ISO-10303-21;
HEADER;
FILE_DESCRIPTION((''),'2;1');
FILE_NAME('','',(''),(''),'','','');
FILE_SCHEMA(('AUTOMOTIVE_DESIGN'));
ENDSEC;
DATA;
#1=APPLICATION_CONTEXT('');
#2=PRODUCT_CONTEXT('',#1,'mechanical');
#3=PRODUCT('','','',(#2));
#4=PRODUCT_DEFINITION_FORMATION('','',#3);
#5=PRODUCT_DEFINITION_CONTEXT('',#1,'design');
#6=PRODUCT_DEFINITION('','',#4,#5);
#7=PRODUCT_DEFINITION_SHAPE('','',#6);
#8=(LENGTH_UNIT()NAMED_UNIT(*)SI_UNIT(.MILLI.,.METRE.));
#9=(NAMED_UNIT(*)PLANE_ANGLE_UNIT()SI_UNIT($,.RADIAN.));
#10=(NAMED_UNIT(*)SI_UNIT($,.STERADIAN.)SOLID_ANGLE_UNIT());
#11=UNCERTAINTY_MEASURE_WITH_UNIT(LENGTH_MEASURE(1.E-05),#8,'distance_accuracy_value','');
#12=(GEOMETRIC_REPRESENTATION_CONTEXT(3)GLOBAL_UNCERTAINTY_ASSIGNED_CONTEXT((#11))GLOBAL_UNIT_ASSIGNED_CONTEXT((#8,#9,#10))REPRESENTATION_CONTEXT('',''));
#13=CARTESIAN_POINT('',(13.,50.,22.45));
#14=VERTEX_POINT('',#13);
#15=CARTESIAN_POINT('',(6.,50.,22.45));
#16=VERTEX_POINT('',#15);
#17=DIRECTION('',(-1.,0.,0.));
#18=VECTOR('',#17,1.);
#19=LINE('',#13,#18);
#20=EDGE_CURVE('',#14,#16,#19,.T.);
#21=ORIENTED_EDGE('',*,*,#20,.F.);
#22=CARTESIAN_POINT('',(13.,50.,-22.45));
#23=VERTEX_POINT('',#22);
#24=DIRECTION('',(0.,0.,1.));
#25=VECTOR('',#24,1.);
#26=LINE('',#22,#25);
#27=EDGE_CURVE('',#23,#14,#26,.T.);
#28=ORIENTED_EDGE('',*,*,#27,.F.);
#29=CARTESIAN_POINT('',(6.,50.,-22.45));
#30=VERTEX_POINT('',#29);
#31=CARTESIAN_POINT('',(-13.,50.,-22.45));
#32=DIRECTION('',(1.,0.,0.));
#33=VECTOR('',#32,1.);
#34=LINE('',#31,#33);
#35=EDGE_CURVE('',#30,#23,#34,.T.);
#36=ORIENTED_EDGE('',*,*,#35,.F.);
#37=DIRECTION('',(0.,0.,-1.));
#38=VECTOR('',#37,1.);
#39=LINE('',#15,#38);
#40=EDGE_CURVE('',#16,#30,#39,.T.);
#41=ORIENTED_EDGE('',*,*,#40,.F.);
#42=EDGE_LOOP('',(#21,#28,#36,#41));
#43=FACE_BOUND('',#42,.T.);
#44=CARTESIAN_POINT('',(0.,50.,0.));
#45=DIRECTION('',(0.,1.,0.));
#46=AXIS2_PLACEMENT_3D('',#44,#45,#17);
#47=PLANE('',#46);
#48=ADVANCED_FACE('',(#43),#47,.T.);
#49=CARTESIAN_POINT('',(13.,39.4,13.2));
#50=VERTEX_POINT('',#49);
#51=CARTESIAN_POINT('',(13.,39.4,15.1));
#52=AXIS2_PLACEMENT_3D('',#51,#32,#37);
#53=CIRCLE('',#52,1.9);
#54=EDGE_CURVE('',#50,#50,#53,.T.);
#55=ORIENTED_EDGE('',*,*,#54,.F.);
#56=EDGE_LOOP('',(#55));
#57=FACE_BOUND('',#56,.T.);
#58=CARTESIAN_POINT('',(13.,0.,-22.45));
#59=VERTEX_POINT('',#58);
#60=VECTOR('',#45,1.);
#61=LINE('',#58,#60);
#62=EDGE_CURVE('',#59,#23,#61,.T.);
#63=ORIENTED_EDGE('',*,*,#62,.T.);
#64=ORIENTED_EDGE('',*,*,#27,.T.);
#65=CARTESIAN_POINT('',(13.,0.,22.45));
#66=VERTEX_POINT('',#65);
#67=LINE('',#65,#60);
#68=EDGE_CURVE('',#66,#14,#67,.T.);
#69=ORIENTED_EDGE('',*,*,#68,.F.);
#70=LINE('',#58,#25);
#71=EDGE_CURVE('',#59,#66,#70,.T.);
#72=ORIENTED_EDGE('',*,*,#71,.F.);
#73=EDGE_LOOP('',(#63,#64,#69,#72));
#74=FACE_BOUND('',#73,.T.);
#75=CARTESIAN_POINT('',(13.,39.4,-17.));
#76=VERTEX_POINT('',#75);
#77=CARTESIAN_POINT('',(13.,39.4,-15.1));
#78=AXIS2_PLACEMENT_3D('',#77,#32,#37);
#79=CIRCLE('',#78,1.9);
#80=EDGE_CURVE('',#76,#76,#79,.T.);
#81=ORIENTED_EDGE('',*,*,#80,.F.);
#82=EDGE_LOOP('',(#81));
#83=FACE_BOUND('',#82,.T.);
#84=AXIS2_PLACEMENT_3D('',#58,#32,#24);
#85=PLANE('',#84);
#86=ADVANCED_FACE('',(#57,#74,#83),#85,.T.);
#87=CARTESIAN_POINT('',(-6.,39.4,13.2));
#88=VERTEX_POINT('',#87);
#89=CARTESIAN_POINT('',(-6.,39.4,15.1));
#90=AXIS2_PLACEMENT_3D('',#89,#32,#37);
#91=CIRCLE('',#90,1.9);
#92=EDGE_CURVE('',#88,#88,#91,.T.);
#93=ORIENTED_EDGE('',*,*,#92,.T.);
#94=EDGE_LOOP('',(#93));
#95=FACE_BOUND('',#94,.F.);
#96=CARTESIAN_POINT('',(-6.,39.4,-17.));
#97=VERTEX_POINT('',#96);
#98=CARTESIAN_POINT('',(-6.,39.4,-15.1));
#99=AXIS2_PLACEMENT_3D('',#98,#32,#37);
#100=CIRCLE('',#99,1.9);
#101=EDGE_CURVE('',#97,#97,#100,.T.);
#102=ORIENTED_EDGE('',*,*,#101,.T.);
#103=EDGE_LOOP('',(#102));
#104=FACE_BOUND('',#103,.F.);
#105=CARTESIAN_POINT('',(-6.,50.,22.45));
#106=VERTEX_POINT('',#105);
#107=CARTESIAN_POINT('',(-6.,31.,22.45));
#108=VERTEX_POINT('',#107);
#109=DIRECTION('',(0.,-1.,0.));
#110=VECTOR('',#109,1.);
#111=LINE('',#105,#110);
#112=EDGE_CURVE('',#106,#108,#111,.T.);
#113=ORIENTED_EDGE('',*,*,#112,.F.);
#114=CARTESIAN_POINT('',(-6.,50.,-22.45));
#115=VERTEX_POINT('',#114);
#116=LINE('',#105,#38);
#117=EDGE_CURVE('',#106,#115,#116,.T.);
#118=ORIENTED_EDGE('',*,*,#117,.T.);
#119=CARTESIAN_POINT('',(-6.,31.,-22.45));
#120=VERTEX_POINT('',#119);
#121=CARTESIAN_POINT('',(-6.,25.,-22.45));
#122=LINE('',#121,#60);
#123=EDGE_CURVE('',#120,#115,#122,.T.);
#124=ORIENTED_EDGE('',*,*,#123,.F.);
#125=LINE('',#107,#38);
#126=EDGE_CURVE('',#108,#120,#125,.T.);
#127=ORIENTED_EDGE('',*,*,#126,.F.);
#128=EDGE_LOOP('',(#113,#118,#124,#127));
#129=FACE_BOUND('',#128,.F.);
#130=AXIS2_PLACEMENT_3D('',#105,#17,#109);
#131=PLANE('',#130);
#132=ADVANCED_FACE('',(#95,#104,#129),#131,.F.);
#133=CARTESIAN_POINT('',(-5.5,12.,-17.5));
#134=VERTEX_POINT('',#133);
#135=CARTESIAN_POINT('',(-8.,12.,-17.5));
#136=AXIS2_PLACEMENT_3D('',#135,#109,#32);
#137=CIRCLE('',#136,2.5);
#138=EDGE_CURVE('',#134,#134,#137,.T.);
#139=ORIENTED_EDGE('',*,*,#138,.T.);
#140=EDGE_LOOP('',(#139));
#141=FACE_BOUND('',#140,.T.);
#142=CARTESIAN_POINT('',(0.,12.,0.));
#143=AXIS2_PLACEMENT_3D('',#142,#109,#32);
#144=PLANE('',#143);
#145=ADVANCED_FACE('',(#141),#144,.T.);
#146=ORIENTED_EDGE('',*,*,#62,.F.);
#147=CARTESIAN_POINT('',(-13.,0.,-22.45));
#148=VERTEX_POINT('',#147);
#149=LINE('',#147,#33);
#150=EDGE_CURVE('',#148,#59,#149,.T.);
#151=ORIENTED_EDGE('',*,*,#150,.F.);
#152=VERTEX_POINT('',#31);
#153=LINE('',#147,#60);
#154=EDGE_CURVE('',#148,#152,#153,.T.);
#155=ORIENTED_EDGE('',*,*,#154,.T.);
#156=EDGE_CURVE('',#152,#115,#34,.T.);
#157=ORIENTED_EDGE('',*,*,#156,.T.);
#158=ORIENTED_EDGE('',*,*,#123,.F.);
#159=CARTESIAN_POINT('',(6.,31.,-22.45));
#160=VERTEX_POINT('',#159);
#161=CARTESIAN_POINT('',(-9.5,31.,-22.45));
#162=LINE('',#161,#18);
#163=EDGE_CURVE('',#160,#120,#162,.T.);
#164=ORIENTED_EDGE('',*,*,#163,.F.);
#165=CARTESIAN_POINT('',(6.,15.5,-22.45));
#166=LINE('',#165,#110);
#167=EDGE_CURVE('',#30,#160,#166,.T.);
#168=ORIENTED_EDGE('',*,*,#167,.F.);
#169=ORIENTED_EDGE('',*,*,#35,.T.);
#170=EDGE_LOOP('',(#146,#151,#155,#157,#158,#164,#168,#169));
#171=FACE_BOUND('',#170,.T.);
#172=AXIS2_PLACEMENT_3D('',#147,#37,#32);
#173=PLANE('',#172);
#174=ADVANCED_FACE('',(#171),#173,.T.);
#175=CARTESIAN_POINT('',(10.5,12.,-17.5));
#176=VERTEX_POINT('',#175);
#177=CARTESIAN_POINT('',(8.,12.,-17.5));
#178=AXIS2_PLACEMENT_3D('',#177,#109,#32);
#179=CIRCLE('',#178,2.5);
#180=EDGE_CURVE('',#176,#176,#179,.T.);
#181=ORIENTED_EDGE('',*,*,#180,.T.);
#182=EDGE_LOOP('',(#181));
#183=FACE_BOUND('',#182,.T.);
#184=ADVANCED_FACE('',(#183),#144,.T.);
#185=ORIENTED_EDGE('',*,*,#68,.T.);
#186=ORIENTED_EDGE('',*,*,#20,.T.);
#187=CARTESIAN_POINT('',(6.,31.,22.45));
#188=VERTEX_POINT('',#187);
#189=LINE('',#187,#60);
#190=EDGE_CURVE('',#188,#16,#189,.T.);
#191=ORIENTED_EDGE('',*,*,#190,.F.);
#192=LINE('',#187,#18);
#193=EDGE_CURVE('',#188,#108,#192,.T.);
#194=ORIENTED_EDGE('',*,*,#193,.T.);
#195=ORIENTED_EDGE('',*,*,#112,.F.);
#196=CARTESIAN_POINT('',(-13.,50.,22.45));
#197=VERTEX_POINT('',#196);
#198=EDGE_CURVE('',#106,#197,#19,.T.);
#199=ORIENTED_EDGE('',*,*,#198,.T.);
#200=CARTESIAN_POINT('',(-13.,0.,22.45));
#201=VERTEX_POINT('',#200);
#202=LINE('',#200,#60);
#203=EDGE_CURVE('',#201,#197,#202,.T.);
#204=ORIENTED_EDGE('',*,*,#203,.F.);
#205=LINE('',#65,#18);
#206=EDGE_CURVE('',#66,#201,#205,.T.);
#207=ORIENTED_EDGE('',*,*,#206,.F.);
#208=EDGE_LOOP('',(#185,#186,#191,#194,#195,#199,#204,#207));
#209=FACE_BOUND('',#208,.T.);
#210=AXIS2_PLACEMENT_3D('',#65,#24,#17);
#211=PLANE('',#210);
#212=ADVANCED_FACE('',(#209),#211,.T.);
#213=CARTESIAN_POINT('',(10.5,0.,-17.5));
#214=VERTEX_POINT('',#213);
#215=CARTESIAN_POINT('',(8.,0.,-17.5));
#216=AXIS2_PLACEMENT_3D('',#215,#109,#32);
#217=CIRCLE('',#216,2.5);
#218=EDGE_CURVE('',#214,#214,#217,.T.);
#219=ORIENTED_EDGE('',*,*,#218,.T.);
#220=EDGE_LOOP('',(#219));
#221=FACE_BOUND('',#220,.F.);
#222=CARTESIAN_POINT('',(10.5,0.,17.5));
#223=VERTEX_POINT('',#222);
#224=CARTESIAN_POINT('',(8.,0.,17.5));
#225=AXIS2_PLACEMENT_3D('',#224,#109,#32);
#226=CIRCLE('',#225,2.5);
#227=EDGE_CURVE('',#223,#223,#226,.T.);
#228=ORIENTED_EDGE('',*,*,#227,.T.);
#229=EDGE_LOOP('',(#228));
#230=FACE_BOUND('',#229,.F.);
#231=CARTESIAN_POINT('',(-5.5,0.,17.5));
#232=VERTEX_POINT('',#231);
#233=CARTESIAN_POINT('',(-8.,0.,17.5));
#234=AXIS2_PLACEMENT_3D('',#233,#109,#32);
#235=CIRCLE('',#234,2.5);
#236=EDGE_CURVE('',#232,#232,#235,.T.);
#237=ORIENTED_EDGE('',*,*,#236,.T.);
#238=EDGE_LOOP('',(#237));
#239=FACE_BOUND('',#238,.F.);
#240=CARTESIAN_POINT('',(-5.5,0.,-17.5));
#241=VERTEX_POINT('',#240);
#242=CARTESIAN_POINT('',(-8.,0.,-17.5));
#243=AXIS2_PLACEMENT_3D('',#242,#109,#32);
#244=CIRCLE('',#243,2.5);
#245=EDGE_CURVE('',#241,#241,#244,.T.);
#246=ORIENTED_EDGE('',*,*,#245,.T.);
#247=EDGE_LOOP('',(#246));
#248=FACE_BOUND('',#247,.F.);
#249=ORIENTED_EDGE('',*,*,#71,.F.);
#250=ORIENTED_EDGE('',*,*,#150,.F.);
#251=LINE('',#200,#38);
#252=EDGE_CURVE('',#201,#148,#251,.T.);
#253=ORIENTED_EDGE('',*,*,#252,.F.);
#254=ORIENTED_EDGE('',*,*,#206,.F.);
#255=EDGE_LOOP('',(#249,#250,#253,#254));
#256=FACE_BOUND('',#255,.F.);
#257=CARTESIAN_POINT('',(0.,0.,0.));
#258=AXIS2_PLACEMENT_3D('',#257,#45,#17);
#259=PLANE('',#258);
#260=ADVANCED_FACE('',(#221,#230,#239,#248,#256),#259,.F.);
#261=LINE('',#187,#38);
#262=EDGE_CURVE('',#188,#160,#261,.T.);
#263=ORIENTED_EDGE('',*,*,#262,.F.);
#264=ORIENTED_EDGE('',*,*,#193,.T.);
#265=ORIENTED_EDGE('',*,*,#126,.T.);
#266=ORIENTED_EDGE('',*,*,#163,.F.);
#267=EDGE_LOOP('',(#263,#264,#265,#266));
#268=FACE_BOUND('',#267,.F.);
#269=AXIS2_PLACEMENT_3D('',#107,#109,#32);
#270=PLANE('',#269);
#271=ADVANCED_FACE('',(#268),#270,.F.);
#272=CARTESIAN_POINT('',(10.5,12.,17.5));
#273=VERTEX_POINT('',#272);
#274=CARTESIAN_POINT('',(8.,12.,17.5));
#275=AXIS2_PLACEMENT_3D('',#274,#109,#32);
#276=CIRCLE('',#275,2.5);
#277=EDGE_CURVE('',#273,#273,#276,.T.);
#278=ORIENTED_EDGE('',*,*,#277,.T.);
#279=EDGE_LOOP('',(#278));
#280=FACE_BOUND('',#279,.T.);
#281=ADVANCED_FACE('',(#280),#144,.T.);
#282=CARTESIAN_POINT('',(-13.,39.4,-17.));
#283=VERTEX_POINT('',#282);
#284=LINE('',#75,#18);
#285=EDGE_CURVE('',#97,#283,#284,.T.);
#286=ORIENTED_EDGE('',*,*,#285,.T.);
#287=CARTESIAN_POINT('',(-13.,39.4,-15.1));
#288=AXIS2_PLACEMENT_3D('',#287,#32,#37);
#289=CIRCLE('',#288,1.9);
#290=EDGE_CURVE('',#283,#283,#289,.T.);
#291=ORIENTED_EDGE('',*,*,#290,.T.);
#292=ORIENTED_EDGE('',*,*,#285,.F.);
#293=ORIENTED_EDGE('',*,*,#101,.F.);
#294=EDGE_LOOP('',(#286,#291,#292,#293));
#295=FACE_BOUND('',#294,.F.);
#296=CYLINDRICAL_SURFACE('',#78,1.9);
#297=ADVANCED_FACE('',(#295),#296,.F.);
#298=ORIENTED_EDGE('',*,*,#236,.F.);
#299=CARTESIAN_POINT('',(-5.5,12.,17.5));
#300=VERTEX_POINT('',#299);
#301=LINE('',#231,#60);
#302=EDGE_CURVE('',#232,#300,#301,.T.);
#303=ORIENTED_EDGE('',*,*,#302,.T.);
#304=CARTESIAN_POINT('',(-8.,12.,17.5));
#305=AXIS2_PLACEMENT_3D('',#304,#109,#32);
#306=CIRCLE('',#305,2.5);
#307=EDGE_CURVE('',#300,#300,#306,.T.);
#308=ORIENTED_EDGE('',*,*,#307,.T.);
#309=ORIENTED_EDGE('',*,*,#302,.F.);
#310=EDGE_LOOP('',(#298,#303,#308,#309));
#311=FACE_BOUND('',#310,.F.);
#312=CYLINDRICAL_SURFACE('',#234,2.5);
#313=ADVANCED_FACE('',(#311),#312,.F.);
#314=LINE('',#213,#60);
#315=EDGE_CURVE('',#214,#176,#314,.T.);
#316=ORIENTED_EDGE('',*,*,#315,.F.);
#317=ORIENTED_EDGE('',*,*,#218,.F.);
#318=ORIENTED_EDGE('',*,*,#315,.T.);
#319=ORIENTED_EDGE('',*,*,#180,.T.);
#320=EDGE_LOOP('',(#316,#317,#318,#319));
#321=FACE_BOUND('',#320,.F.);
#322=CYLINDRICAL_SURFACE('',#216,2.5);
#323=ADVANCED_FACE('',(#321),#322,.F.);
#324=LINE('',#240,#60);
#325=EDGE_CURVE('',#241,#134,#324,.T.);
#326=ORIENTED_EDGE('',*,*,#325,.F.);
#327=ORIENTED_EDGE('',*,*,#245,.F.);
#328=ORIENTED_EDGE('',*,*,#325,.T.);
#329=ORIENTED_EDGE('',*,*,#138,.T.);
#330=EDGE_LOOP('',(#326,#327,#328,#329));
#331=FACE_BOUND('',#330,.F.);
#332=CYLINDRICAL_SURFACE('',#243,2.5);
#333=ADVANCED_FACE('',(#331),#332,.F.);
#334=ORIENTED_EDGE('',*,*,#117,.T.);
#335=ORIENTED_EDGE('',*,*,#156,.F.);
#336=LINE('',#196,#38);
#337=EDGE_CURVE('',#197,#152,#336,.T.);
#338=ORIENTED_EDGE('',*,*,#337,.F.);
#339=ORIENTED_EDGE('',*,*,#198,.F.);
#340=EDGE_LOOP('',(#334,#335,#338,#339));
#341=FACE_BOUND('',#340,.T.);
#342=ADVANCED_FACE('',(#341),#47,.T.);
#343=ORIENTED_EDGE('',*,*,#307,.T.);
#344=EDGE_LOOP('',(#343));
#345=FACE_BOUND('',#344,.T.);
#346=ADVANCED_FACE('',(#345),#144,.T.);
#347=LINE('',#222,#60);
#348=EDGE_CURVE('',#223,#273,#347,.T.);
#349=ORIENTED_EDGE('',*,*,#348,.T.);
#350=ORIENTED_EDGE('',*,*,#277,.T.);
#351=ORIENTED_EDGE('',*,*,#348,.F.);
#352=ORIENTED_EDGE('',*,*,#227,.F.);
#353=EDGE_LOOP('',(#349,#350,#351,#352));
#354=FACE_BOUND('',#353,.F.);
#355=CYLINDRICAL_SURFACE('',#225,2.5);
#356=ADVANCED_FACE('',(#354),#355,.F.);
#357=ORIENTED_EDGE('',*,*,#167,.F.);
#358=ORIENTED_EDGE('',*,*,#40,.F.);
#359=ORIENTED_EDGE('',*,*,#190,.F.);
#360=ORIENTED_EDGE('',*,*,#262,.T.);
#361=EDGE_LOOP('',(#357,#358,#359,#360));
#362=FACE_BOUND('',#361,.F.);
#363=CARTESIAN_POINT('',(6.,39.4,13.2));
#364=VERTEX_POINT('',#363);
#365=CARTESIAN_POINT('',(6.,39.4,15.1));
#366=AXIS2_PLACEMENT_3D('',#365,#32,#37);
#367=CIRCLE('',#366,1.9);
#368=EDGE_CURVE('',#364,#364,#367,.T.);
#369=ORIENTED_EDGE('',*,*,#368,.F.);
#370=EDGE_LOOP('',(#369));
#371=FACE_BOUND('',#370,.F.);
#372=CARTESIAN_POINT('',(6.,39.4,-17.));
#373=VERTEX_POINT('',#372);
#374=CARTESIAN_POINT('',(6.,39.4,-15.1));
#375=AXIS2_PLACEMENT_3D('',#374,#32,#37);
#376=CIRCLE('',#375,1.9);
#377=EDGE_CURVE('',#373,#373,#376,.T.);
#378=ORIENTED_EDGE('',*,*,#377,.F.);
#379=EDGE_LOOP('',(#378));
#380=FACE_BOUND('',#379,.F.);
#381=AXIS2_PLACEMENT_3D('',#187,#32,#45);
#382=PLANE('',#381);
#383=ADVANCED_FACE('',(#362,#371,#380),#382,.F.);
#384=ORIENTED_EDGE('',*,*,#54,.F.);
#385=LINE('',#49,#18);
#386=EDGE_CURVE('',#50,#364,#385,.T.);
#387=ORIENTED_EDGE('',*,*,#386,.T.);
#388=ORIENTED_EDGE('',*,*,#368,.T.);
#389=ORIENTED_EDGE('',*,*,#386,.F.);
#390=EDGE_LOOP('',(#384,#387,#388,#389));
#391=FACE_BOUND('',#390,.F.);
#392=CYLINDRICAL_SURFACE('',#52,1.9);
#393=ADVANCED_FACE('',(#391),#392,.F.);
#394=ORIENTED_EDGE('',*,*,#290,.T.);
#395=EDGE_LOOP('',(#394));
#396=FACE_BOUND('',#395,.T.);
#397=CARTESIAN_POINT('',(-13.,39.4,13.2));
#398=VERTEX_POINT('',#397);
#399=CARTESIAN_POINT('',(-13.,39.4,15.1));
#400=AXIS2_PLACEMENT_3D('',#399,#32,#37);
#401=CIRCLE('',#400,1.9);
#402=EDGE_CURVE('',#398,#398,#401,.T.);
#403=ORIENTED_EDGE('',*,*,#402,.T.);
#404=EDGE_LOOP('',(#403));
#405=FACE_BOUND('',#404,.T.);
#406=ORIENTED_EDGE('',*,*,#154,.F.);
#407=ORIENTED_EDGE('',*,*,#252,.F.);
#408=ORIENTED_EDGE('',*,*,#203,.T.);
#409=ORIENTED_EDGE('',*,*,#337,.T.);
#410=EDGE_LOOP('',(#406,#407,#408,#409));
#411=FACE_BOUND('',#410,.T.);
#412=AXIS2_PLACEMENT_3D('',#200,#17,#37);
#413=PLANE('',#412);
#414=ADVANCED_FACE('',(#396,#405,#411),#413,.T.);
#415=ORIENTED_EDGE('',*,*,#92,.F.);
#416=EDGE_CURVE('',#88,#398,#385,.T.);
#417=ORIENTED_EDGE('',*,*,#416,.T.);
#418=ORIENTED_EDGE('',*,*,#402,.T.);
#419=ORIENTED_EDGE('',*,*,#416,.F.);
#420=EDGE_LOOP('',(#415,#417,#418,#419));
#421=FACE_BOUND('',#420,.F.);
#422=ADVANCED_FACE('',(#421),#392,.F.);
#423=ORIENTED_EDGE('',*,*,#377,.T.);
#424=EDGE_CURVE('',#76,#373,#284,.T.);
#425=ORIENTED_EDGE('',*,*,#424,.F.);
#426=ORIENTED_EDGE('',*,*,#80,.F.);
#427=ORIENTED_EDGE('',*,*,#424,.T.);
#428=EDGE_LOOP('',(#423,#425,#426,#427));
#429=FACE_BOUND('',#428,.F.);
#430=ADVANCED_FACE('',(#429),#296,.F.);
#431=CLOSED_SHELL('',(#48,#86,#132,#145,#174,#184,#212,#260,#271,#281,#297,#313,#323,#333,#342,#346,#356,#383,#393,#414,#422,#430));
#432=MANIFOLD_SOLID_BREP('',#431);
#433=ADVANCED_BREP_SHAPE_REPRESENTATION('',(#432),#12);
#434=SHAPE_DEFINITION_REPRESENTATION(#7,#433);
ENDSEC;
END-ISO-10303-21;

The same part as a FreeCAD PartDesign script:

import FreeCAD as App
import Part
import Sketcher

V = App.Vector
Q = App.Units.Quantity

doc = App.newDocument("Part")
body = doc.addObject("PartDesign::Body", "Body")

# Sketch on XZ plane
sketch1 = doc.addObject("Sketcher::SketchObject", "Sketch")
body.addObject(sketch1)
sketch1.AttachmentSupport = (doc.XZ_Plane, [""])
sketch1.MapMode = "FlatFace"
sketch1.addGeometry([
    Part.LineSegment(V(-13, 22.45, 0), V(13, 22.45, 0)),
    Part.LineSegment(V(13, 22.45, 0), V(13, -22.45, 0)),
    Part.LineSegment(V(13, -22.45, 0), V(-13, -22.45, 0)),
    Part.LineSegment(V(-13, -22.45, 0), V(-13, 22.45, 0)),
], False)
sketch1.addConstraint([
    Sketcher.Constraint("Coincident", 0, 2, 1, 1),
    Sketcher.Constraint("Coincident", 1, 2, 2, 1),
    Sketcher.Constraint("Coincident", 2, 2, 3, 1),
    Sketcher.Constraint("Coincident", 3, 2, 0, 1),
    Sketcher.Constraint("Horizontal", 0),
    Sketcher.Constraint("Vertical", 1),
    Sketcher.Constraint("Horizontal", 2),
    Sketcher.Constraint("Vertical", 3),
    Sketcher.Constraint("Symmetric", 0, 2, 2, 2, -1, 1),
    Sketcher.Constraint("DistanceX", 0, 1, 0, 2, Q("26 mm")),
    Sketcher.Constraint("DistanceY", 1, 2, 1, 1, Q("44.9 mm")),
])
pad1 = doc.addObject("PartDesign::Pad", "Pad")
body.addObject(pad1)
pad1.Profile = sketch1
pad1.Length = 50
pad1.Reversed = True

# Sketch on XY plane
sketch2 = doc.addObject("Sketcher::SketchObject", "Sketch001")
body.addObject(sketch2)
sketch2.AttachmentSupport = (doc.XY_Plane, [""])
sketch2.MapMode = "FlatFace"
sketch2.AttachmentOffset = App.Placement(V(0, 0, 22.45), App.Rotation())
sketch2.addGeometry([
    Part.LineSegment(V(-6, 31, 0), V(6, 31, 0)),
    Part.LineSegment(V(6, 31, 0), V(6, 50, 0)),
    Part.LineSegment(V(6, 50, 0), V(-6, 50, 0)),
    Part.LineSegment(V(-6, 50, 0), V(-6, 31, 0)),
], False)
sketch2.addConstraint([
    Sketcher.Constraint("Coincident", 0, 2, 1, 1),
    Sketcher.Constraint("Coincident", 1, 2, 2, 1),
    Sketcher.Constraint("Coincident", 2, 2, 3, 1),
    Sketcher.Constraint("Coincident", 3, 2, 0, 1),
    Sketcher.Constraint("Horizontal", 0),
    Sketcher.Constraint("Vertical", 1),
    Sketcher.Constraint("Horizontal", 2),
    Sketcher.Constraint("Vertical", 3),
    Sketcher.Constraint("DistanceX", 0, 1, 0, 2, Q("12 mm")),
    Sketcher.Constraint("DistanceY", 1, 1, 1, 2, Q("19 mm")),
    Sketcher.Constraint("DistanceX", -1, 1, 0, 2, Q("6 mm")),
    Sketcher.Constraint("DistanceY", -1, 1, 0, 2, Q("31 mm")),
])
pocket1 = doc.addObject("PartDesign::Pocket", "Pocket")
body.addObject(pocket1)
pocket1.Profile = sketch2
pocket1.Length = 50

# Sketch on YZ plane
sketch3 = doc.addObject("Sketcher::SketchObject", "Sketch002")
body.addObject(sketch3)
sketch3.AttachmentSupport = (doc.YZ_Plane, [""])
sketch3.MapMode = "FlatFace"
sketch3.AttachmentOffset = App.Placement(V(0, 0, 13), App.Rotation())
sketch3.addGeometry([
    Part.Circle(V(39.4, 15.1, 0), V(0, 0, 1), 1.9),
    Part.Circle(V(39.4, -15.1, 0), V(0, 0, 1), 1.9),
], False)
sketch3.addConstraint([
    Sketcher.Constraint("Equal", 0, 1),
    Sketcher.Constraint("Symmetric", 0, 3, 1, 3, -1),
    Sketcher.Constraint("Diameter", 0, Q("3.8 mm")),
    Sketcher.Constraint("DistanceX", -1, 1, 0, 3, Q("39.4 mm")),
    Sketcher.Constraint("DistanceY", -1, 1, 0, 3, Q("15.1 mm")),
])
pocket2 = doc.addObject("PartDesign::Pocket", "Pocket001")
body.addObject(pocket2)
pocket2.Profile = sketch3
pocket2.Length = 50

# Sketch on XZ plane
sketch4 = doc.addObject("Sketcher::SketchObject", "Sketch003")
body.addObject(sketch4)
sketch4.AttachmentSupport = (doc.XZ_Plane, [""])
sketch4.MapMode = "FlatFace"
sketch4.addGeometry([
    Part.Circle(V(-8, -17.5, 0), V(0, 0, 1), 2.5),
    Part.Circle(V(8, -17.5, 0), V(0, 0, 1), 2.5),
    Part.Circle(V(-8, 17.5, 0), V(0, 0, 1), 2.5),
    Part.Circle(V(8, 17.5, 0), V(0, 0, 1), 2.5),
], False)
sketch4.addConstraint([
    Sketcher.Constraint("Equal", 0, 1),
    Sketcher.Constraint("Equal", 1, 2),
    Sketcher.Constraint("Equal", 2, 3),
    Sketcher.Constraint("Symmetric", 1, 3, 2, 3, -1, 1),
    Sketcher.Constraint("Symmetric", 0, 3, 3, 3, -1, 1),
    Sketcher.Constraint("Symmetric", 0, 3, 1, 3, -2),
    Sketcher.Constraint("Diameter", 0, Q("5 mm")),
    Sketcher.Constraint("DistanceX", 0, 3, -1, 1, Q("8 mm")),
    Sketcher.Constraint("DistanceY", 0, 3, 2, 3, Q("35 mm")),
])
pocket3 = doc.addObject("PartDesign::Pocket", "Pocket002")
body.addObject(pocket3)
pocket3.Profile = sketch4
pocket3.Length = 12

doc.recompute()
